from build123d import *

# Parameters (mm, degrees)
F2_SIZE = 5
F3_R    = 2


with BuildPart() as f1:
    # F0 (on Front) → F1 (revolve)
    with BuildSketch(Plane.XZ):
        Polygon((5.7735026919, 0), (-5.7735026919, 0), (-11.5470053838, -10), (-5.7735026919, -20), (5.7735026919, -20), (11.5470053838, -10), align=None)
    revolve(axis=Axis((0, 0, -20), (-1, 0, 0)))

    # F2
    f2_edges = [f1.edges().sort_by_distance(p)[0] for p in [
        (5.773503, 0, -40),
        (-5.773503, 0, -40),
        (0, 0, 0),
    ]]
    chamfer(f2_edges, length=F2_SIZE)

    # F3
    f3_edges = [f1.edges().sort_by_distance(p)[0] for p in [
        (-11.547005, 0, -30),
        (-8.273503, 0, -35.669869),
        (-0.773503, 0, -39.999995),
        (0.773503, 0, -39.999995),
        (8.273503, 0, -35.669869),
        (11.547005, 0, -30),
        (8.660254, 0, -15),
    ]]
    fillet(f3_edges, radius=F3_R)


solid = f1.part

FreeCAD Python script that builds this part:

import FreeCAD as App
import Part
import Sketcher
from FreeCAD import Vector
Q = App.Units.Quantity


def edges_at(feature, points):
    """Names of the edges that pass closest to the given points."""
    edges = feature.Shape.Edges
    near = lambda p: min(range(len(edges)), key=lambda i: edges[i].distToShape(Part.Vertex(*p))[0])
    return sorted({f"Edge{near(p) + 1}" for p in points})


def add_polygon(sketch, points):
    """Adds a closed chain of lines whose ends are joined by coincident constraints."""
    first, n = sketch.GeometryCount, len(points)
    for a, b in zip(points, points[1:] + points[:1]):
        sketch.addGeometry(Part.LineSegment(App.Vector(*a, 0), App.Vector(*b, 0)), False)
    for i in range(n):
        sketch.addConstraint(Sketcher.Constraint("Coincident", first + i, 2, first + (i + 1) % n, 1))

doc = App.newDocument("Part")
params = doc.addObject("Spreadsheet::Sheet", "Params")
for row, (alias, value) in enumerate([
    ("revolution_angle", "360 deg"),
    ("chamfer_size", "5 mm"),
    ("fillet_radius", "2 mm"),
], start=1):
    params.set(f"A{row}", alias)
    params.set(f"B{row}", "=" + value)
    params.setAlias(f"B{row}", alias)

body = doc.addObject("PartDesign::Body", "Body")

sketch1 = body.newObject("Sketcher::SketchObject", "Sketch")
sketch1.AttachmentSupport = (doc.getObject("XZ_Plane"), [""])
sketch1.MapMode = "FlatFace"
add_polygon(sketch1, [(5.773503, 0), (-5.773503, 0), (-11.547005, -10), (-5.773503, -20), (5.773503, -20), (11.547005, -10)])
sketch1.addGeometry(Part.LineSegment(Vector(11.547005, -20, 0), Vector(-11.547005, -20, 0)), True)
sketch1.addConstraint([
    Sketcher.Constraint("Horizontal", 0),
    Sketcher.Constraint("Horizontal", 3),
    Sketcher.Constraint("Horizontal", 6),
    Sketcher.Constraint("Symmetric", 0, 2, 5, 2, -1, 1),
    Sketcher.Constraint("Symmetric", 1, 2, 4, 2, -2),
    Sketcher.Constraint("Parallel", 1, 4),
    Sketcher.Constraint("Parallel", 2, 5),
    Sketcher.Constraint("Horizontal", 3, 2, 6, 1),
    Sketcher.Constraint("Vertical", 0, 2, 2, 2),
    Sketcher.Constraint("Vertical", 4, 2, 6, 1),
    Sketcher.Constraint("Vertical", 1, 2, 6, 2),
    Sketcher.Constraint("Angle", 1, Q("-120 deg")),
    Sketcher.Constraint("DistanceY", 1, 2, -1, 1, Q("10 mm")),
    Sketcher.Constraint("DistanceX", 6, 2, 6, 1, Q("23.094011 mm")),
])
revolution = body.newObject("PartDesign::Revolution", "Revolution")
revolution.Profile = sketch1
revolution.ReferenceAxis = (sketch1, ["Axis0"])
revolution.setExpression("Angle", "Params.revolution_angle")
doc.recompute()

chamfer = body.newObject("PartDesign::Chamfer", "Chamfer")
chamfer.Base = (revolution, edges_at(revolution, [(5.774, 0, -40), (-5.774, 0, -40), (0, 0, 0)]))
chamfer.setExpression("Size", "Params.chamfer_size")
doc.recompute()

fillet = body.newObject("PartDesign::Fillet", "Fillet")
fillet.Base = (chamfer, edges_at(chamfer, [
    (-11.547, 0, -30),
    (-8.274, 0, -35.67),
    (-0.774, 0, -40),
    (0.774, 0, -40),
    (8.274, 0, -35.67),
    (11.547, 0, -30),
    (8.66, 0, -15),
]))
fillet.setExpression("Radius", "Params.fillet_radius")

doc.recompute()
